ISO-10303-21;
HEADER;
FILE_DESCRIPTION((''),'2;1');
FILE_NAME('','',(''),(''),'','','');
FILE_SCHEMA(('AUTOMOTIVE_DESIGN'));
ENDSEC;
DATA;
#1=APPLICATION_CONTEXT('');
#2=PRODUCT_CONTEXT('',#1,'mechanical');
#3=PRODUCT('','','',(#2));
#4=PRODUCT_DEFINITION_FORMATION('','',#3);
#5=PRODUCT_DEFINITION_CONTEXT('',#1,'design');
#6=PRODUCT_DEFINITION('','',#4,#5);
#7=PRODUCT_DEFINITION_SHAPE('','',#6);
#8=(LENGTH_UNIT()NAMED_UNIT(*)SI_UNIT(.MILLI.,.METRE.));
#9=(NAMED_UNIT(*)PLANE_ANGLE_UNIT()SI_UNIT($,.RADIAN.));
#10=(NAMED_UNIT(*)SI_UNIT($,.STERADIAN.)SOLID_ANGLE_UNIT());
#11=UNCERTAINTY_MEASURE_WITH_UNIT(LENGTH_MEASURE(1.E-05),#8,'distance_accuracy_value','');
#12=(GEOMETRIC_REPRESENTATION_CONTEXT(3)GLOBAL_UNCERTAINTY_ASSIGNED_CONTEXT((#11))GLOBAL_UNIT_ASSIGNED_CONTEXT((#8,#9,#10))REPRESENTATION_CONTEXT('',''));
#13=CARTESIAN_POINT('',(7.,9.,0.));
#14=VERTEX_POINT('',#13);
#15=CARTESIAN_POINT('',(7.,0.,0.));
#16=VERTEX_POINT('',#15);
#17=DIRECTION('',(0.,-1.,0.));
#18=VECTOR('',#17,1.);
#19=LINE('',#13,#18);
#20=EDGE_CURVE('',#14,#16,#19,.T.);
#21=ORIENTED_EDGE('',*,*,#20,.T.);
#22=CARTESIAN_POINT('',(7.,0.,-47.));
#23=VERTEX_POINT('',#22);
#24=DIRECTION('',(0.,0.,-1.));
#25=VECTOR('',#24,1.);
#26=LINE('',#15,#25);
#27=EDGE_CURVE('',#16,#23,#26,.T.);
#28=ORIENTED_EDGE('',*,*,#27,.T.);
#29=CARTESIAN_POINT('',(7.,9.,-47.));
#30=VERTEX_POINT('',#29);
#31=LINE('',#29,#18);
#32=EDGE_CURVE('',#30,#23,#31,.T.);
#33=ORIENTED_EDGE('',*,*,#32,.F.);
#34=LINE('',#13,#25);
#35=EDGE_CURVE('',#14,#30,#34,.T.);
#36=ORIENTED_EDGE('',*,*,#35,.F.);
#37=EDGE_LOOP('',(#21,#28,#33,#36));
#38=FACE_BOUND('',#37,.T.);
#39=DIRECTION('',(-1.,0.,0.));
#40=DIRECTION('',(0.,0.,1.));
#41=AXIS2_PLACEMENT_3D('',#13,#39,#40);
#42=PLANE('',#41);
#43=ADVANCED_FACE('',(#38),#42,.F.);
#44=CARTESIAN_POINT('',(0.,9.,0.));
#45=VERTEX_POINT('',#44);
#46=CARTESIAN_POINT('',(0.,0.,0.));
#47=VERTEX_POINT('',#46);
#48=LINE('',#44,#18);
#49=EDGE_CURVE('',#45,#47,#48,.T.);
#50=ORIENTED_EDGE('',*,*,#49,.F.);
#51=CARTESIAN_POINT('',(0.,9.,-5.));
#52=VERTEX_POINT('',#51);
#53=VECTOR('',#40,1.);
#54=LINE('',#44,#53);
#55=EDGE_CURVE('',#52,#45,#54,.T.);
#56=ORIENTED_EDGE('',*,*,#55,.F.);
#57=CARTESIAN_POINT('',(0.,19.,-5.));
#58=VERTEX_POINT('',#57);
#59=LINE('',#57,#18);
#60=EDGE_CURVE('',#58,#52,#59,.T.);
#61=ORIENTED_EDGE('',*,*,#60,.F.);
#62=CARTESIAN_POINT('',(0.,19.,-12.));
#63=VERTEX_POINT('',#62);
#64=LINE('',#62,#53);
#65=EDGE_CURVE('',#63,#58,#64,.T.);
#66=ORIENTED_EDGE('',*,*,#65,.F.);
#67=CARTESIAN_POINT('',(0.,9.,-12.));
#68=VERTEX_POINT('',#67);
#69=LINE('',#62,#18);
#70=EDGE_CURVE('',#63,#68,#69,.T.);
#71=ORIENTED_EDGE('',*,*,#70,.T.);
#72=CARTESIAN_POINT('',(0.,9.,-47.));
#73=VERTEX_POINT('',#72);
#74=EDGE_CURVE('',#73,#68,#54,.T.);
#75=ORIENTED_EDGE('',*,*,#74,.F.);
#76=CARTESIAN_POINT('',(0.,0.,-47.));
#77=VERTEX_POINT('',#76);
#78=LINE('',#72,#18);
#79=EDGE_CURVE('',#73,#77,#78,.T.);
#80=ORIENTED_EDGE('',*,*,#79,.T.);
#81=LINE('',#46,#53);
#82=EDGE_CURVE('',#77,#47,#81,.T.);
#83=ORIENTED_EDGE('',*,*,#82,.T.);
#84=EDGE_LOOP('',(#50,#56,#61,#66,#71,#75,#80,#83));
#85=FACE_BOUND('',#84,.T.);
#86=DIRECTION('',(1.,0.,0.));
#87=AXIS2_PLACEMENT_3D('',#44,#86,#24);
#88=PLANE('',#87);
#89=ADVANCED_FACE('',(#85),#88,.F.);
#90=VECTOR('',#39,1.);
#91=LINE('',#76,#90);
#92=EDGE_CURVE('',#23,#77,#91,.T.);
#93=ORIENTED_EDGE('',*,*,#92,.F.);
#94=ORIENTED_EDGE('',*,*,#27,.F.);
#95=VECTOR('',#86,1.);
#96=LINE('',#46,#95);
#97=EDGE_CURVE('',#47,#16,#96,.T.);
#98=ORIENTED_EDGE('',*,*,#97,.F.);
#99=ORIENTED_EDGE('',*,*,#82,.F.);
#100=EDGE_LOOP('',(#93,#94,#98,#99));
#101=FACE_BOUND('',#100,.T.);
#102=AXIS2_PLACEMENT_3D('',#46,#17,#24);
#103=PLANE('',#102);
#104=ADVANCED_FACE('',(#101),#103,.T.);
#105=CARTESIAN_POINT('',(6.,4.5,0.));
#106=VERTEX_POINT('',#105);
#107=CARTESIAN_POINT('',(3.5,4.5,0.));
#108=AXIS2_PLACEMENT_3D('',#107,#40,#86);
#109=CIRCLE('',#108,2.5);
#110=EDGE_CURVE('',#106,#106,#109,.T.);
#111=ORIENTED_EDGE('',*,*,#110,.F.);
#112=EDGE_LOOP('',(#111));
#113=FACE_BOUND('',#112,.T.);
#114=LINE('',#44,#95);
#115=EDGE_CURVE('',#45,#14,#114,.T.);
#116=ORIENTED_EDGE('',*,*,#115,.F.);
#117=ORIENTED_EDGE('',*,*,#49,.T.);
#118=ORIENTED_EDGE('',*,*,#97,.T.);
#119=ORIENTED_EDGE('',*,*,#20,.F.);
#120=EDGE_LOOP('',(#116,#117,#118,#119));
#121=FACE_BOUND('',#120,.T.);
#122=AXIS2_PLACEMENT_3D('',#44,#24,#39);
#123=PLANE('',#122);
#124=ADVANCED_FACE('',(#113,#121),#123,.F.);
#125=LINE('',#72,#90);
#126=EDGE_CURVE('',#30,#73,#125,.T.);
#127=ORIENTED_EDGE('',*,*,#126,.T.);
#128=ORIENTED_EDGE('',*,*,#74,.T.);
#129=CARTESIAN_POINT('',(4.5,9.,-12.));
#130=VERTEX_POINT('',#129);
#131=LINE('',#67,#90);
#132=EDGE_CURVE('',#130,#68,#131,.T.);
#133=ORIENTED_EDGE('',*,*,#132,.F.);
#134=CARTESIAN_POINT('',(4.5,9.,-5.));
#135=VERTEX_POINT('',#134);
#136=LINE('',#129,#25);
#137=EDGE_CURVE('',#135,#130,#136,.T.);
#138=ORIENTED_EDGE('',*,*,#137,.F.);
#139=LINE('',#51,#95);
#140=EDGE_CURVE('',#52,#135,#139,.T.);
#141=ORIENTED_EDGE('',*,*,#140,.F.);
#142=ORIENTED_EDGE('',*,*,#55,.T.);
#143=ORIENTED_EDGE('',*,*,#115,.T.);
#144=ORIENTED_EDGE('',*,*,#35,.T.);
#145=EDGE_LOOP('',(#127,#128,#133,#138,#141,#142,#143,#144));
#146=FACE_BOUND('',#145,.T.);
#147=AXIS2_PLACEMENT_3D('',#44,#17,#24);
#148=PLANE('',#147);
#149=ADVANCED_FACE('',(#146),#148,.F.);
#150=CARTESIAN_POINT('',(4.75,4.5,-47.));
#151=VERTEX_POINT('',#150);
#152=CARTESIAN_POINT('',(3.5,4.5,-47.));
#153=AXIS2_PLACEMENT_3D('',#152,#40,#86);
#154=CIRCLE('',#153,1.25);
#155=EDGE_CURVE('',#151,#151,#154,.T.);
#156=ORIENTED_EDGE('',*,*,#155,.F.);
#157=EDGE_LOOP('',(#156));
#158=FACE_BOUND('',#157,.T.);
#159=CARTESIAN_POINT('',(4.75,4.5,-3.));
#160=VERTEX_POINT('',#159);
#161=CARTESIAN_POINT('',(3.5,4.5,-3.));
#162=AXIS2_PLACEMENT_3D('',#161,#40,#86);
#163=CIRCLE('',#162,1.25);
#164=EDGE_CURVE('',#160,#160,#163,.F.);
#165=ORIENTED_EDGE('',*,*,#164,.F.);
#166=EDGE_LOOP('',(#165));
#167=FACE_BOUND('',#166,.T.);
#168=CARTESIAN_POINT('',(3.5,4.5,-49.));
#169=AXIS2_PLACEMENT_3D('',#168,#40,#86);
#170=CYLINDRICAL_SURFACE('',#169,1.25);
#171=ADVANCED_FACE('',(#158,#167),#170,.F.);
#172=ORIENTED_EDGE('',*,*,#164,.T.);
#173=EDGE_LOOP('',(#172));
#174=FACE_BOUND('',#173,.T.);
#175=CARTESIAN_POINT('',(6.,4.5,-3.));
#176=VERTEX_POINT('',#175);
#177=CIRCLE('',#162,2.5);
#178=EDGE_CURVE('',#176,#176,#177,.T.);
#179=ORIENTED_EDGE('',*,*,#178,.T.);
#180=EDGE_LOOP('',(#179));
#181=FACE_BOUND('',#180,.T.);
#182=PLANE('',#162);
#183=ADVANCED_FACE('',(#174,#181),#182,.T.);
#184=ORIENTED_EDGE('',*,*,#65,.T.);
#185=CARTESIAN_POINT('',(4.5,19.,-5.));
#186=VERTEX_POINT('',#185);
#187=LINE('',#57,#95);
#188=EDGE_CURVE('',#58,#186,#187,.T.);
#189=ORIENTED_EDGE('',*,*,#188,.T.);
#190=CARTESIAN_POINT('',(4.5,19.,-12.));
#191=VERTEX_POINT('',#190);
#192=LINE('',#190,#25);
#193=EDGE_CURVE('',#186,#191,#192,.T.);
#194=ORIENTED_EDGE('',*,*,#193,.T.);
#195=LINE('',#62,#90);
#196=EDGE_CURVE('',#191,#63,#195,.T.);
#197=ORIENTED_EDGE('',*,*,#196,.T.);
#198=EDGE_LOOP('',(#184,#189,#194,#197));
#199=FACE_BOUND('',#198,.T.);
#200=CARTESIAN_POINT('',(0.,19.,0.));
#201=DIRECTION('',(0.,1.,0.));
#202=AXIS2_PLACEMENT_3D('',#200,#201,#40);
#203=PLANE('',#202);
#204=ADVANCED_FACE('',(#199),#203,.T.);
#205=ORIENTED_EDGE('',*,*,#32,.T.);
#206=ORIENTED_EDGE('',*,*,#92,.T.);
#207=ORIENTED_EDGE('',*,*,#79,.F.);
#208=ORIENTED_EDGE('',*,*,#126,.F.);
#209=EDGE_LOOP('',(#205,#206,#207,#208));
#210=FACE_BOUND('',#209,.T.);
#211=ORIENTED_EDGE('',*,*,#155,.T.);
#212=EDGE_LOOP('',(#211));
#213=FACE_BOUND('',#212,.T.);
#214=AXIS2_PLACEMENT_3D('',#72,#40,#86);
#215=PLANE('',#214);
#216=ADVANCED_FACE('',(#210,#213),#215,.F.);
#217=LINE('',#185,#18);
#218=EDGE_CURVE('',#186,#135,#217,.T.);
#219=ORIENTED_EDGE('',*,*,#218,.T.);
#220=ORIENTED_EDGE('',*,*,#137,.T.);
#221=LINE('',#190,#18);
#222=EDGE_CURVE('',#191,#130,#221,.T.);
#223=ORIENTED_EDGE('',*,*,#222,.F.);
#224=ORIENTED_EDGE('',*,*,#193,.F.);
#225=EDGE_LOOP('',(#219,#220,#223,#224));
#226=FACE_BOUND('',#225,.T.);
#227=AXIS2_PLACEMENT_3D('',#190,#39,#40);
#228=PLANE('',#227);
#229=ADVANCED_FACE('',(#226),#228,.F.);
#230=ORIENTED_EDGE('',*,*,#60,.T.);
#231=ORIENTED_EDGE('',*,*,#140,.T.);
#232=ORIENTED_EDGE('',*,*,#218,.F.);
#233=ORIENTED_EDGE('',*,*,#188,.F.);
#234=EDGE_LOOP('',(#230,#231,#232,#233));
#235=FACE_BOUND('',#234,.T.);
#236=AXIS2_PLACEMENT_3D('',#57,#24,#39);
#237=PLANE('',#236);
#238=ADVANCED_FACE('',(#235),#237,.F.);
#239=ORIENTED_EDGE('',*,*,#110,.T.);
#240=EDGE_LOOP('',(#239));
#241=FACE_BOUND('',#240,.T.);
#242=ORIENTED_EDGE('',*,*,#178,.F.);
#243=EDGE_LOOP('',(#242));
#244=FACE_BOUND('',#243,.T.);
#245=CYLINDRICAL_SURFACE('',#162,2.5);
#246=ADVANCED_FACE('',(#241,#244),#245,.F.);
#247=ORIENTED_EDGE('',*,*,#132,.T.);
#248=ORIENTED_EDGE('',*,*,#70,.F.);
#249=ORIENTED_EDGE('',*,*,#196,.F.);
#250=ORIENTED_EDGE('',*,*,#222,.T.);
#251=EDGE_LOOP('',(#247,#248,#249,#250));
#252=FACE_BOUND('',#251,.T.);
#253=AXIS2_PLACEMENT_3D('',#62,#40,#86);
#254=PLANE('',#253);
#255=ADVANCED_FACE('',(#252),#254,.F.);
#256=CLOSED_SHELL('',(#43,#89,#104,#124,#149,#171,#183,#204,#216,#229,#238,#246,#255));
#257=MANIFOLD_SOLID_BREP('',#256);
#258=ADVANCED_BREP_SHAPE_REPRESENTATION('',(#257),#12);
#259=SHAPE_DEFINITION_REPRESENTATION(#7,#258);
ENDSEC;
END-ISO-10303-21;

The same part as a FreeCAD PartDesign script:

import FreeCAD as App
import Part
import Sketcher

V = App.Vector

doc = App.newDocument("Part")
body = doc.addObject("PartDesign::Body", "Body")

# Sketch on XZ plane
sketch1 = body.newObject("Sketcher::SketchObject", "Sketch")
sketch1.AttachmentSupport = (doc.getObject("XZ_Plane"), [""])
sketch1.MapMode = "FlatFace"
sketch1.addGeometry([
    Part.LineSegment(V(0, -47, 0), V(0, 0, 0)),
    Part.LineSegment(V(0, 0, 0), V(7, 0, 0)),
    Part.LineSegment(V(7, 0, 0), V(7, -47, 0)),
    Part.LineSegment(V(7, -47, 0), V(0, -47, 0)),
], False)
sketch1.addConstraint([
    Sketcher.Constraint("Coincident", 0, 2, 1, 1),
    Sketcher.Constraint("Coincident", 1, 2, 2, 1),
    Sketcher.Constraint("Coincident", 2, 2, 3, 1),
    Sketcher.Constraint("Coincident", 3, 2, 0, 1),
    Sketcher.Constraint("Vertical", 0),
    Sketcher.Constraint("Horizontal", 1),
    Sketcher.Constraint("Vertical", 2),
    Sketcher.Constraint("Horizontal", 3),
    Sketcher.Constraint("Coincident", 0, 2, -1, 1),
    Sketcher.Constraint("DistanceX", 1, 1, 1, 2, 7.0),
    Sketcher.Constraint("DistanceY", 0, 1, 0, 2, 47.0),
])
pad1 = body.newObject("PartDesign::Pad", "Pad")
pad1.Profile = sketch1
pad1.Length = 9
pad1.Reversed = True

# Sketch on XZ plane
sketch2 = body.newObject("Sketcher::SketchObject", "Sketch001")
sketch2.AttachmentSupport = (doc.getObject("XZ_Plane"), [""])
sketch2.MapMode = "FlatFace"
sketch2.AttachmentOffset = App.Placement(V(0, 0, -9), App.Rotation())
sketch2.addGeometry([
    Part.LineSegment(V(0, -12, 0), V(0, -5, 0)),
    Part.LineSegment(V(0, -5, 0), V(4.5, -5, 0)),
    Part.LineSegment(V(4.5, -5, 0), V(4.5, -12, 0)),
    Part.LineSegment(V(4.5, -12, 0), V(0, -12, 0)),
], False)
sketch2.addConstraint([
    Sketcher.Constraint("Coincident", 0, 2, 1, 1),
    Sketcher.Constraint("Coincident", 1, 2, 2, 1),
    Sketcher.Constraint("Coincident", 2, 2, 3, 1),
    Sketcher.Constraint("Coincident", 3, 2, 0, 1),
    Sketcher.Constraint("Vertical", 0),
    Sketcher.Constraint("Horizontal", 1),
    Sketcher.Constraint("Vertical", 2),
    Sketcher.Constraint("Horizontal", 3),
    Sketcher.Constraint("PointOnObject", 0, 2, -2),
    Sketcher.Constraint("DistanceY", 0, 1, 0, 2, 7.0),
    Sketcher.Constraint("DistanceX", 1, 1, 1, 2, 4.5),
    Sketcher.Constraint("DistanceY", 0, 2, -1, 1, 5.0),
])
pad2 = body.newObject("PartDesign::Pad", "Pad001")
pad2.Profile = sketch2
pad2.Length = 10
pad2.Reversed = True

# Sketch on XY plane
sketch3 = body.newObject("Sketcher::SketchObject", "Sketch002")
sketch3.AttachmentSupport = (doc.getObject("XY_Plane"), [""])
sketch3.MapMode = "FlatFace"
sketch3.addGeometry(Part.Circle(V(3.5, 4.5, 0), V(0, 0, 1), 1.2), False)
sketch3.addConstraint([
    Sketcher.Constraint("Diameter", 0, 2.5),
    Sketcher.Constraint("DistanceX", -1, 1, 0, 3, 3.5),
    Sketcher.Constraint("DistanceY", -1, 1, 0, 3, 4.5),
])
pocket1 = body.newObject("PartDesign::Pocket", "Pocket")
pocket1.Profile = sketch3
pocket1.Length = 49

# Sketch on XY plane
sketch4 = body.newObject("Sketcher::SketchObject", "Sketch003")
sketch4.AttachmentSupport = (doc.getObject("XY_Plane"), [""])
sketch4.MapMode = "FlatFace"
sketch4.addGeometry(Part.Circle(V(3.5, 4.5, 0), V(0, 0, 1), 2.5), False)
sketch4.addConstraint([
    Sketcher.Constraint("Diameter", 0, 5.0),
    Sketcher.Constraint("DistanceX", -1, 1, 0, 3, 3.5),
    Sketcher.Constraint("DistanceY", -1, 1, 0, 3, 4.5),
])
pocket2 = body.newObject("PartDesign::Pocket", "Pocket001")
pocket2.Profile = sketch4
pocket2.Length = 3

doc.recompute()
